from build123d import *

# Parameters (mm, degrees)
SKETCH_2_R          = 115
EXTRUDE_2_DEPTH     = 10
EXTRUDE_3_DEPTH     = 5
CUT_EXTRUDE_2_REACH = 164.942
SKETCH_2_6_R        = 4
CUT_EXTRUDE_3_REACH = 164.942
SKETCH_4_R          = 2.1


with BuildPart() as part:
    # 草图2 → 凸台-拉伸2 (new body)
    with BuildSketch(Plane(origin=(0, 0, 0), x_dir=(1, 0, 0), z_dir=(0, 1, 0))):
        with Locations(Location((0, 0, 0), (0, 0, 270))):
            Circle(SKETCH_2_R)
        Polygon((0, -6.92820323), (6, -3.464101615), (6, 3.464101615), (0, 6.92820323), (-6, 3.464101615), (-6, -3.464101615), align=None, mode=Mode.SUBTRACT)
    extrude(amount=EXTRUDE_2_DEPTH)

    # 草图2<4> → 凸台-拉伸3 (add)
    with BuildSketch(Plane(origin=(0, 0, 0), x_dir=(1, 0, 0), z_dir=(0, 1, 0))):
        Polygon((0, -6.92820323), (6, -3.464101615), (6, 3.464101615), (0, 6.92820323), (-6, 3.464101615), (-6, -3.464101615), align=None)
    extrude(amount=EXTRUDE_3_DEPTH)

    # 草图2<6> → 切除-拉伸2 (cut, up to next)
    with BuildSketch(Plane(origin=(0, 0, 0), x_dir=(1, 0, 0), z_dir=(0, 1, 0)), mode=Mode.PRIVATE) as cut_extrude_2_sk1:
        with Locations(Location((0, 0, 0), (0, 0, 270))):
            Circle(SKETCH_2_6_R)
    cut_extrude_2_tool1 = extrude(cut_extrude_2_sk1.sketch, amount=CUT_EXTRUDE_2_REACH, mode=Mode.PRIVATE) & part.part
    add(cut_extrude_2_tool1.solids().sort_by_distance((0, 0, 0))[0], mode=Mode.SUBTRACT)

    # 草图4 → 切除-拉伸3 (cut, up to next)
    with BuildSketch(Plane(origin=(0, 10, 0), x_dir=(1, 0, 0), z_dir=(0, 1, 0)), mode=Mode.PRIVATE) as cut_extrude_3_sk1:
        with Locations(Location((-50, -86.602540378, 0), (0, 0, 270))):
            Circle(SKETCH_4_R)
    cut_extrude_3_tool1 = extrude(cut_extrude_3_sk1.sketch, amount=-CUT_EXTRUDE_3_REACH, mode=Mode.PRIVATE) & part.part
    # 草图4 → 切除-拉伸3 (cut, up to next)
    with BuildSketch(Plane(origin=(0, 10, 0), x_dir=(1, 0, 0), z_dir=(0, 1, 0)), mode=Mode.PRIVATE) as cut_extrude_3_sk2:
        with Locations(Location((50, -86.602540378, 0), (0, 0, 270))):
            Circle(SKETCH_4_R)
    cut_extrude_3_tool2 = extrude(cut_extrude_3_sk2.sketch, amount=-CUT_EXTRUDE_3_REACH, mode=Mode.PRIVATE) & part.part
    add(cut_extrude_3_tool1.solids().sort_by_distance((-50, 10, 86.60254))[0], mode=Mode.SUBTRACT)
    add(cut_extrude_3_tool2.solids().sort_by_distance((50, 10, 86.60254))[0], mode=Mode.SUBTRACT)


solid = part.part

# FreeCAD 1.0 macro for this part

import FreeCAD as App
import Part
import Sketcher
from FreeCAD import Vector
Q = App.Units.Quantity


def add_polygon(sketch, points):
    """Adds a closed chain of lines whose ends are joined by coincident constraints."""
    first, n = sketch.GeometryCount, len(points)
    for a, b in zip(points, points[1:] + points[:1]):
        sketch.addGeometry(Part.LineSegment(App.Vector(*a, 0), App.Vector(*b, 0)), False)
    for i in range(n):
        sketch.addConstraint(Sketcher.Constraint("Coincident", first + i, 2, first + (i + 1) % n, 1))

doc = App.newDocument("Part")
body = doc.addObject("PartDesign::Body", "Body")

sketch1 = body.newObject("Sketcher::SketchObject", "Sketch")
sketch1.AttachmentSupport = (doc.getObject("XZ_Plane"), [""])
sketch1.MapMode = "FlatFace"
sketch1.addGeometry(Part.Circle(Vector(0, 0, 0), Vector(0, 0, 1), 115), False)
add_polygon(sketch1, [(6, 3.464102), (0, 6.928203), (-6, 3.464102), (-6, -3.464102), (0, -6.928203), (6, -3.464102)])
sketch1.addConstraint(Sketcher.Constraint("Vertical", 3))
sketch1.addConstraint(Sketcher.Constraint("Vertical", 6))
sketch1.addConstraint(Sketcher.Constraint("Coincident", 0, 3, -1, 1))
sketch1.addConstraint(Sketcher.Constraint("Symmetric", 1, 2, 4, 2, -1, 1))
sketch1.addConstraint(Sketcher.Constraint("Symmetric", 2, 2, 5, 2, -1, 1))
sketch1.addConstraint(Sketcher.Constraint("PointOnObject", 1, 2, -2))
sketch1.addConstraint(Sketcher.Constraint("Parallel", 1, 4))
sketch1.addConstraint(Sketcher.Constraint("Horizontal", 3, 2, 5, 2))
sketch1.addConstraint(Sketcher.Constraint("Diameter", 0, 230.0))
sketch1.addConstraint(Sketcher.Constraint("Angle", 1, Q("150 deg")))
sketch1.addConstraint(Sketcher.Constraint("DistanceX", 2, 2, -1, 1, 6.0))
sketch1.addConstraint(Sketcher.Constraint("DistanceY", -1, 1, 2, 2, 3.464102))
pad1 = body.newObject("PartDesign::Pad", "Pad")
pad1.Profile = sketch1
pad1.Length = 10
pad1.Reversed = True

sketch2 = body.newObject("Sketcher::SketchObject", "Sketch001")
sketch2.AttachmentSupport = (doc.getObject("XZ_Plane"), [""])
sketch2.MapMode = "FlatFace"
add_polygon(sketch2, [(0, 6.928203), (6, 3.464102), (6, -3.464102), (0, -6.928203), (-6, -3.464102), (-6, 3.464102)])
sketch2.addConstraint(Sketcher.Constraint("Vertical", 1))
sketch2.addConstraint(Sketcher.Constraint("Vertical", 4))
sketch2.addConstraint(Sketcher.Constraint("Symmetric", 0, 2, 3, 2, -1, 1))
sketch2.addConstraint(Sketcher.Constraint("Symmetric", 2, 2, 5, 2, -1, 1))
sketch2.addConstraint(Sketcher.Constraint("PointOnObject", 2, 2, -2))
sketch2.addConstraint(Sketcher.Constraint("Parallel", 2, 5))
sketch2.addConstraint(Sketcher.Constraint("Horizontal", 1, 2, 3, 2))
sketch2.addConstraint(Sketcher.Constraint("Angle", 0, Q("-30 deg")))
sketch2.addConstraint(Sketcher.Constraint("DistanceX", -1, 1, 0, 2, 6.0))
sketch2.addConstraint(Sketcher.Constraint("DistanceY", -1, 1, 0, 2, 3.464102))
pad2 = body.newObject("PartDesign::Pad", "Pad001")
pad2.Profile = sketch2
pad2.Length = 5
pad2.Reversed = True

sketch3 = body.newObject("Sketcher::SketchObject", "Sketch002")
sketch3.AttachmentSupport = (doc.getObject("XZ_Plane"), [""])
sketch3.MapMode = "FlatFace"
sketch3.addGeometry(Part.Circle(Vector(0, 0, 0), Vector(0, 0, 1), 4), False)
sketch3.addConstraint(Sketcher.Constraint("Coincident", 0, 3, -1, 1))
sketch3.addConstraint(Sketcher.Constraint("Diameter", 0, 8.0))
pocket1 = body.newObject("PartDesign::Pocket", "Pocket")
pocket1.Profile = sketch3
pocket1.Type = "UpToFirst"

sketch4 = body.newObject("Sketcher::SketchObject", "Sketch003")
sketch4.AttachmentSupport = (doc.getObject("XZ_Plane"), [""])
sketch4.MapMode = "FlatFace"
sketch4.AttachmentOffset = App.Placement(Vector(0, 0, -10), App.Rotation())
sketch4.addGeometry(Part.Circle(Vector(-50, 86.60254, 0), Vector(0, 0, 1), 2.1), False)
sketch4.addConstraint(Sketcher.Constraint("Diameter", 0, 4.2))
sketch4.addConstraint(Sketcher.Constraint("DistanceX", 0, 3, -1, 1, 50.0))
sketch4.addConstraint(Sketcher.Constraint("DistanceY", -1, 1, 0, 3, 86.60254))
pocket2 = body.newObject("PartDesign::Pocket", "Pocket001")
pocket2.Profile = sketch4
pocket2.Type = "UpToFirst"
pocket2.Reversed = True

sketch5 = body.newObject("Sketcher::SketchObject", "Sketch004")
sketch5.AttachmentSupport = (doc.getObject("XZ_Plane"), [""])
sketch5.MapMode = "FlatFace"
sketch5.AttachmentOffset = App.Placement(Vector(0, 0, -10), App.Rotation())
sketch5.addGeometry(Part.Circle(Vector(50, 86.60254, 0), Vector(0, 0, 1), 2.1), False)
sketch5.addConstraint(Sketcher.Constraint("Diameter", 0, 4.2))
sketch5.addConstraint(Sketcher.Constraint("DistanceX", -1, 1, 0, 3, 50.0))
sketch5.addConstraint(Sketcher.Constraint("DistanceY", -1, 1, 0, 3, 86.60254))
pocket3 = body.newObject("PartDesign::Pocket", "Pocket002")
pocket3.Profile = sketch5
pocket3.Type = "UpToFirst"
pocket3.Reversed = True

doc.recompute()
